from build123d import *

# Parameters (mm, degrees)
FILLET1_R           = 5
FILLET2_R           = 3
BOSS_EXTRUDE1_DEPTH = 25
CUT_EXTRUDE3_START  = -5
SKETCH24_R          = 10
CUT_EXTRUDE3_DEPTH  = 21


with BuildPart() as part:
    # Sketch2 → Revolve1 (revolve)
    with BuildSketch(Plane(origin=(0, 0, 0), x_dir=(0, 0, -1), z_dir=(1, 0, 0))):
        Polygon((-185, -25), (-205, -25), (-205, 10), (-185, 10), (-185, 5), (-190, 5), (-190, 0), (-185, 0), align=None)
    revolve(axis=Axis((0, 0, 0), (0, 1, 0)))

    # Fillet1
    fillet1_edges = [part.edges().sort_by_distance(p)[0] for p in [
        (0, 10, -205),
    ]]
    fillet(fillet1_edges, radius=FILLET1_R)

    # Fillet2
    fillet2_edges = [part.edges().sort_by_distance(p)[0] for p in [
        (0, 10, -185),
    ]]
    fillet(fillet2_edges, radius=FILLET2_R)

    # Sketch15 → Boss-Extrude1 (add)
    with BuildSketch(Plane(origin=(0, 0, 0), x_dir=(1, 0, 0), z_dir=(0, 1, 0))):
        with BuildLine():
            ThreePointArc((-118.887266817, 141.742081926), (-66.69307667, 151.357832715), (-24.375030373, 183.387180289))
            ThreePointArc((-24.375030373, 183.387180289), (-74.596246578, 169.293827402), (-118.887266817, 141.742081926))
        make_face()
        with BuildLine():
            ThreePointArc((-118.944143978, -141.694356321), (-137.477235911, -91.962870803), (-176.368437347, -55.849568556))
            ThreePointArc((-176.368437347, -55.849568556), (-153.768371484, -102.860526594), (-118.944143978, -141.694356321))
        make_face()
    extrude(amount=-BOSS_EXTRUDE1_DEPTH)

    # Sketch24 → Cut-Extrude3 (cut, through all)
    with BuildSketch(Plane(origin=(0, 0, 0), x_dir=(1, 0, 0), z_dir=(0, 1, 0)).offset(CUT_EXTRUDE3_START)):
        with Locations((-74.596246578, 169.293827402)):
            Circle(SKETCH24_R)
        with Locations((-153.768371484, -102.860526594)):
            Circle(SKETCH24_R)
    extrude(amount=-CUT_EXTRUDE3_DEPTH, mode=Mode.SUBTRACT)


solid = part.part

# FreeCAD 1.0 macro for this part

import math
import FreeCAD as App
import Part
import Sketcher
from FreeCAD import Vector
Q = App.Units.Quantity


def edges_at(feature, points):
    """Names of the edges that pass closest to the given points."""
    edges = feature.Shape.Edges
    near = lambda p: min(range(len(edges)), key=lambda i: edges[i].distToShape(Part.Vertex(*p))[0])
    return sorted({f"Edge{near(p) + 1}" for p in points})


def add_polygon(sketch, points):
    """Adds a closed chain of lines whose ends are joined by coincident constraints."""
    first, n = sketch.GeometryCount, len(points)
    for a, b in zip(points, points[1:] + points[:1]):
        sketch.addGeometry(Part.LineSegment(App.Vector(*a, 0), App.Vector(*b, 0)), False)
    for i in range(n):
        sketch.addConstraint(Sketcher.Constraint("Coincident", first + i, 2, first + (i + 1) % n, 1))

doc = App.newDocument("Part")
body = doc.addObject("PartDesign::Body", "Body")

# Sketch on YZ plane
sketch1 = body.newObject("Sketcher::SketchObject", "Sketch")
sketch1.AttachmentSupport = (doc.getObject("YZ_Plane"), [""])
sketch1.MapMode = "FlatFace"
add_polygon(sketch1, [(-25, 205), (-25, 185), (0, 185), (0, 190), (5, 190), (5, 185), (10, 185), (10, 205)])  # lines 0-7
sketch1.addConstraint(Sketcher.Constraint("Vertical", 0))
sketch1.addConstraint(Sketcher.Constraint("Horizontal", 1))
sketch1.addConstraint(Sketcher.Constraint("Vertical", 2))
sketch1.addConstraint(Sketcher.Constraint("Horizontal", 3))
sketch1.addConstraint(Sketcher.Constraint("Vertical", 4))
sketch1.addConstraint(Sketcher.Constraint("Horizontal", 5))
sketch1.addConstraint(Sketcher.Constraint("Vertical", 6))
sketch1.addConstraint(Sketcher.Constraint("Horizontal", 7))
sketch1.addConstraint(Sketcher.Constraint("PointOnObject", 1, 2, -2))
sketch1.addConstraint(Sketcher.Constraint("Horizontal", 1, 2, 4, 2))
sketch1.addConstraint(Sketcher.Constraint("Equal", 3, 5))
sketch1.addConstraint(Sketcher.Constraint("Equal", 5, 2))
sketch1.addConstraint(Sketcher.Constraint("DistanceX", 1, 1, 1, 2, Q("25 mm")))
sketch1.addConstraint(Sketcher.Constraint("DistanceX", 3, 1, 3, 2, Q("5 mm")))
sketch1.addConstraint(Sketcher.Constraint("DistanceY", 0, 2, 0, 1, Q("20 mm")))
sketch1.addConstraint(Sketcher.Constraint("DistanceY", -1, 1, 0, 2, Q("185 mm")))
revolution = body.newObject("PartDesign::Revolution", "Revolution")
revolution.Profile = sketch1
revolution.ReferenceAxis = (sketch1, ["H_Axis"])
revolution.Angle = 360
doc.recompute()

fillet = body.newObject("PartDesign::Fillet", "Fillet")
fillet.Base = (revolution, edges_at(revolution, [(0, 10, -205)]))
fillet.Radius = 5
doc.recompute()

fillet2 = body.newObject("PartDesign::Fillet", "Fillet001")
fillet2.Base = (fillet, edges_at(fillet, [(0, 10, -185)]))
fillet2.Radius = 3

# Sketch on XZ plane
sketch2 = body.newObject("Sketcher::SketchObject", "Sketch001")
sketch2.AttachmentSupport = (doc.getObject("XZ_Plane"), [""])
sketch2.MapMode = "FlatFace"
sketch2.addGeometry(Part.ArcOfCircle(Part.Circle(Vector(-113.063716, -256.594536, 0), Vector(0, 0, 1), 115), math.radians(39.537693), math.radians(92.902675)), False)
sketch2.addGeometry(Part.ArcOfCircle(Part.Circle(Vector(0, 0, 0), Vector(0, 0, 1), 185), math.radians(-129.988502), math.radians(-97.57113)), False)
sketch2.addGeometry(Part.ArcOfCircle(Part.Circle(Vector(-233.06298, 155.903198, 0), Vector(0, 0, 1), 115), math.radians(-60.462307), math.radians(-7.097325)), False)
sketch2.addGeometry(Part.ArcOfCircle(Part.Circle(Vector(0, 0, 0), Vector(0, 0, 1), 185), math.radians(130.011498), math.radians(162.42887)), False)
sketch2.addConstraint(Sketcher.Constraint("Coincident", 0, 1, 1, 2))
sketch2.addConstraint(Sketcher.Constraint("Coincident", 1, 1, 0, 2))
sketch2.addConstraint(Sketcher.Constraint("Coincident", 2, 1, 3, 2))
sketch2.addConstraint(Sketcher.Constraint("Coincident", 3, 1, 2, 2))
sketch2.addConstraint(Sketcher.Constraint("Coincident", 1, 3, -1, 1))
sketch2.addConstraint(Sketcher.Constraint("Coincident", 3, 3, -1, 1))
sketch2.addConstraint(Sketcher.Constraint("Equal", 0, 2))
sketch2.addConstraint(Sketcher.Constraint("Equal", 1, 3))
sketch2.addConstraint(Sketcher.Constraint("Radius", 0, Q("115 mm")))
sketch2.addConstraint(Sketcher.Constraint("Radius", 1, Q("185 mm")))
sketch2.addConstraint(Sketcher.Constraint("DistanceY", -1, 1, 2, 3, Q("155.903198 mm")))
sketch2.addConstraint(Sketcher.Constraint("DistanceY", 0, 1, 1, 1, Q("41.645098 mm")))
sketch2.addConstraint(Sketcher.Constraint("DistanceX", 2, 3, -1, 1, Q("233.06298 mm")))
sketch2.addConstraint(Sketcher.Constraint("DistanceX", 0, 1, -1, 1, Q("24.37503 mm")))
pad1 = body.newObject("PartDesign::Pad", "Pad")
pad1.Profile = sketch2
pad1.Length = 25

# Sketch on XZ plane
sketch3 = body.newObject("Sketcher::SketchObject", "Sketch002")
sketch3.AttachmentSupport = (doc.getObject("XZ_Plane"), [""])
sketch3.MapMode = "FlatFace"
sketch3.AttachmentOffset = App.Placement(Vector(0, 0, 5), App.Rotation())
sketch3.addGeometry(Part.Circle(Vector(-74.596247, -169.293827, 0), Vector(0, 0, 1), 10), False)
sketch3.addGeometry(Part.Circle(Vector(-153.768371, 102.860527, 0), Vector(0, 0, 1), 10), False)
sketch3.addConstraint(Sketcher.Constraint("Equal", 0, 1))
sketch3.addConstraint(Sketcher.Constraint("Diameter", 0, Q("20 mm")))
sketch3.addConstraint(Sketcher.Constraint("DistanceX", 1, 3, -1, 1, Q("153.768371 mm")))
sketch3.addConstraint(Sketcher.Constraint("DistanceX", 0, 3, -1, 1, Q("74.596247 mm")))
sketch3.addConstraint(Sketcher.Constraint("DistanceY", 0, 3, -1, 1, Q("169.293827 mm")))
sketch3.addConstraint(Sketcher.Constraint("DistanceY", -1, 1, 1, 3, Q("102.860527 mm")))
pocket1 = body.newObject("PartDesign::Pocket", "Pocket")
pocket1.Profile = sketch3
pocket1.Type = "ThroughAll"
pocket1.Reversed = True

doc.recompute()
